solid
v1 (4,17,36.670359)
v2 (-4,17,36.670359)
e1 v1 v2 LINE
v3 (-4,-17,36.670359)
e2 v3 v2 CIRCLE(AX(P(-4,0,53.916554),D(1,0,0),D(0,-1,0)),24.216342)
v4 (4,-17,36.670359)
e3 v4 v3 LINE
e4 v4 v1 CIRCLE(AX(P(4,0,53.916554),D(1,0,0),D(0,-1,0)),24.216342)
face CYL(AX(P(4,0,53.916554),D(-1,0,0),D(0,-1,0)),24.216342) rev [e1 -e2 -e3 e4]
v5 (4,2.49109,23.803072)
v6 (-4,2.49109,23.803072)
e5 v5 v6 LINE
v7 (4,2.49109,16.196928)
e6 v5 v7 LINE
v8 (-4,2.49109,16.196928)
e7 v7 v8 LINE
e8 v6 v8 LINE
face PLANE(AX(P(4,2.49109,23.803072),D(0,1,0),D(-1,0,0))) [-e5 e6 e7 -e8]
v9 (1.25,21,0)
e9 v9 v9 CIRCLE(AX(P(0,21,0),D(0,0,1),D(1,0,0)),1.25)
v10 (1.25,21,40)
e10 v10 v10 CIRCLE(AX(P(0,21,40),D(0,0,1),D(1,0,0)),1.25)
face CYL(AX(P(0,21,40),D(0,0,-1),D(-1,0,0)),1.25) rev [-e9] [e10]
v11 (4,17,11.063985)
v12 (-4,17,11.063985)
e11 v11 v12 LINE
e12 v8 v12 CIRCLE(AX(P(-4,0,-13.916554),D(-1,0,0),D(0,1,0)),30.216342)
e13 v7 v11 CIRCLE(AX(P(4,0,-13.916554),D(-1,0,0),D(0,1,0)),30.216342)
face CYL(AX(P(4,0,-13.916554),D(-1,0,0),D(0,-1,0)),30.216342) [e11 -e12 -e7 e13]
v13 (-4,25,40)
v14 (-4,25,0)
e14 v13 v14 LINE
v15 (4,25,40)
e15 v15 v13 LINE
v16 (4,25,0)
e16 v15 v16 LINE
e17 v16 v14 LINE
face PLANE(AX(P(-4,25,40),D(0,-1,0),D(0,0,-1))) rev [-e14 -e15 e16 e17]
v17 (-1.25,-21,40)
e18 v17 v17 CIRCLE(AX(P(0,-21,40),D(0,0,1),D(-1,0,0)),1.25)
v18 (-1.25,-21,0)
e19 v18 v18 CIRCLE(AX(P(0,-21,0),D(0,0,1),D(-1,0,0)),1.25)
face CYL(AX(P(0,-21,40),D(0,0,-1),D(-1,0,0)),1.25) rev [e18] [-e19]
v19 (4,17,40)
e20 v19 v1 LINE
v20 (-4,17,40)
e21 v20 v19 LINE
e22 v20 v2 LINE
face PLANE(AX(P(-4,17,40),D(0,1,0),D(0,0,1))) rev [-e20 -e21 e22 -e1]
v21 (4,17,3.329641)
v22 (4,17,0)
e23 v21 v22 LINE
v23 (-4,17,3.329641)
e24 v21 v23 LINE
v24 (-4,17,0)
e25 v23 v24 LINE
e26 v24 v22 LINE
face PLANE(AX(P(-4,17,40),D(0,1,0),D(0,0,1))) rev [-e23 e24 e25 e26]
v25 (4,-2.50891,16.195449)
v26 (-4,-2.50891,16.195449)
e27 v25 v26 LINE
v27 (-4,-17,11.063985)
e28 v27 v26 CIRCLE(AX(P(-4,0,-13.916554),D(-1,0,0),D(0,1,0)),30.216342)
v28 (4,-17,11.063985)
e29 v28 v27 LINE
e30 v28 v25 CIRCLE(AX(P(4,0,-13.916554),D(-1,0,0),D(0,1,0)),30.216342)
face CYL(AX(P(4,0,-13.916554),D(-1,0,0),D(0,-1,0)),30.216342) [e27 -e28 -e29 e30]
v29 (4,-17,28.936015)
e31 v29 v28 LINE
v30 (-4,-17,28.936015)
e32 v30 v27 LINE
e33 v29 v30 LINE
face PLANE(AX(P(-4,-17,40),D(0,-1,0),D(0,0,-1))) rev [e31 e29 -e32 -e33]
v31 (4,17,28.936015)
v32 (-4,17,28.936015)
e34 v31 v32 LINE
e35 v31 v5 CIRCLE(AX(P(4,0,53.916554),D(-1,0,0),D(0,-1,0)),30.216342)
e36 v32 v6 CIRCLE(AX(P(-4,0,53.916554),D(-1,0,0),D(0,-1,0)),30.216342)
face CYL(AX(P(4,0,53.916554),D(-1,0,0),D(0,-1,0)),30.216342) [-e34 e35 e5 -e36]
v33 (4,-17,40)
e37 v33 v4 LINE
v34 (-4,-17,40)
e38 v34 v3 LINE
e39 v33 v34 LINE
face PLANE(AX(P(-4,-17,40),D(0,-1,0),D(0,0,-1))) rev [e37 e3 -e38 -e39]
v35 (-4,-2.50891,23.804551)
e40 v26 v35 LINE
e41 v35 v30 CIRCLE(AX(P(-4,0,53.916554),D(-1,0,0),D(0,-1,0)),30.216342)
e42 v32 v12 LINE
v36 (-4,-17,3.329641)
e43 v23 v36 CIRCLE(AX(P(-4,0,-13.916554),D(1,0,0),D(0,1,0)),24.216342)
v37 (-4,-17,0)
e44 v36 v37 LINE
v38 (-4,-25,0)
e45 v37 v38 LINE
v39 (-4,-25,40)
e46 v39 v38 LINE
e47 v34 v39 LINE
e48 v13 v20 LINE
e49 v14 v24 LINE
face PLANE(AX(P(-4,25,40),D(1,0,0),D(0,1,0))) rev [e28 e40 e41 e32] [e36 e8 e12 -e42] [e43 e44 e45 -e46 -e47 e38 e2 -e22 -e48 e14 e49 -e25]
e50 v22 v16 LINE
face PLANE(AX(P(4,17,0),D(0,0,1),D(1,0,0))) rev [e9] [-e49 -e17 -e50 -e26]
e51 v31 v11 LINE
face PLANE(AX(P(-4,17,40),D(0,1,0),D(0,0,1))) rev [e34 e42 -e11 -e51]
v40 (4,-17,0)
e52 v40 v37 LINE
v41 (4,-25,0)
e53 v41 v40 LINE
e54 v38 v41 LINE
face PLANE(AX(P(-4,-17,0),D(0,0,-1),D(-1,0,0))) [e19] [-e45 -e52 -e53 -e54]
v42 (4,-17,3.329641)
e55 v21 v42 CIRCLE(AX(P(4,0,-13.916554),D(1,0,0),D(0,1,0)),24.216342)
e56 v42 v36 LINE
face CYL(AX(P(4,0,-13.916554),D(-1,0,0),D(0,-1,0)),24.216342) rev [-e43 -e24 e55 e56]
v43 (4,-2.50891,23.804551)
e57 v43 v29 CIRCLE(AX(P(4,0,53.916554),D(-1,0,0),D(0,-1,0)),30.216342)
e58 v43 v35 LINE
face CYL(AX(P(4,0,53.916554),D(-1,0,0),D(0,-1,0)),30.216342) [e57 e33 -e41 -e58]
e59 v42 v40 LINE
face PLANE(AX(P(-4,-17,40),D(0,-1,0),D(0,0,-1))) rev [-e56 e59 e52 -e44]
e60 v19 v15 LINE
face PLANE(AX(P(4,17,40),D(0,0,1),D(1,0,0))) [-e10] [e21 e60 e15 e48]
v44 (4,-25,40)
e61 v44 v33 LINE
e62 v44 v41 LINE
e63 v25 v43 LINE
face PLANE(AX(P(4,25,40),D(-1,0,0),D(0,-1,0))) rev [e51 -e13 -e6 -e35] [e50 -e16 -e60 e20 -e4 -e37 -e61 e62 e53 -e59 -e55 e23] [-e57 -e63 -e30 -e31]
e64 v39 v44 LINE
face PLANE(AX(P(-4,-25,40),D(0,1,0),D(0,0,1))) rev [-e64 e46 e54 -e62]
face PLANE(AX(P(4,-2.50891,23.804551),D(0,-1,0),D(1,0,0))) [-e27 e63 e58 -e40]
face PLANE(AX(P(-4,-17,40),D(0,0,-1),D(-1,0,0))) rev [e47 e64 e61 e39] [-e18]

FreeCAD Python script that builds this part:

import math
import FreeCAD as App
import Part
import Sketcher

V = App.Vector


def add_polygon(sketch, points):
    """Adds a closed chain of lines whose ends are joined by coincident constraints."""
    first, n = sketch.GeometryCount, len(points)
    for a, b in zip(points, points[1:] + points[:1]):
        sketch.addGeometry(Part.LineSegment(App.Vector(*a, 0), App.Vector(*b, 0)), False)
    for i in range(n):
        sketch.addConstraint(Sketcher.Constraint("Coincident", first + i, 2, first + (i + 1) % n, 1))

doc = App.newDocument("Part")
body = doc.addObject("PartDesign::Body", "Body")

# Sketch on XY plane
sketch1 = doc.addObject("Sketcher::SketchObject", "Sketch")
body.addObject(sketch1)
sketch1.AttachmentSupport = (doc.XY_Plane, [""])
sketch1.MapMode = "FlatFace"
add_polygon(sketch1, [(-4, 25), (-4, 17), (4, 17), (4, 25)])  # lines 0-3
sketch1.addGeometry(Part.Circle(V(0, 21, 0), V(0, 0, 1), 1.25), False)  # 4
sketch1.addConstraint(Sketcher.Constraint("Vertical", 0))
sketch1.addConstraint(Sketcher.Constraint("Horizontal", 1))
sketch1.addConstraint(Sketcher.Constraint("Vertical", 2))
sketch1.addConstraint(Sketcher.Constraint("Horizontal", 3))
sketch1.addConstraint(Sketcher.Constraint("PointOnObject", 4, 3, -2))
sketch1.addConstraint(Sketcher.Constraint("Equal", 3, 0))
sketch1.addConstraint(Sketcher.Constraint("Diameter", 4, 2.5))
sketch1.addConstraint(Sketcher.Constraint("DistanceX", 1, 1, 1, 2, 8.0))
sketch1.addConstraint(Sketcher.Constraint("DistanceY", -1, 1, 4, 3, 21.0))
sketch1.addConstraint(Sketcher.Constraint("DistanceX", 0, 2, -1, 1, 4.0))
sketch1.addConstraint(Sketcher.Constraint("DistanceY", -1, 1, 0, 2, 17.0))
pad1 = doc.addObject("PartDesign::Pad", "Pad")
body.addObject(pad1)
pad1.Profile = sketch1
pad1.Length = 40
body2 = doc.addObject("PartDesign::Body", "Body001")

# Sketch on XY plane
sketch2 = doc.addObject("Sketcher::SketchObject", "Sketch001")
body2.addObject(sketch2)
sketch2.AttachmentSupport = (doc.getObject("XY_Plane001"), [""])
sketch2.MapMode = "FlatFace"
add_polygon(sketch2, [(-4, -17), (-4, -25), (4, -25), (4, -17)])  # lines 0-3
sketch2.addGeometry(Part.Circle(V(0, -21, 0), V(0, 0, 1), 1.25), False)  # 4
sketch2.addConstraint(Sketcher.Constraint("Vertical", 0))
sketch2.addConstraint(Sketcher.Constraint("Horizontal", 1))
sketch2.addConstraint(Sketcher.Constraint("Vertical", 2))
sketch2.addConstraint(Sketcher.Constraint("Horizontal", 3))
sketch2.addConstraint(Sketcher.Constraint("PointOnObject", 4, 3, -2))
sketch2.addConstraint(Sketcher.Constraint("Equal", 3, 0))
sketch2.addConstraint(Sketcher.Constraint("Diameter", 4, 2.5))
sketch2.addConstraint(Sketcher.Constraint("DistanceX", 1, 1, 1, 2, 8.0))
sketch2.addConstraint(Sketcher.Constraint("DistanceY", 4, 3, -1, 1, 21.0))
sketch2.addConstraint(Sketcher.Constraint("DistanceX", 0, 2, -1, 1, 4.0))
sketch2.addConstraint(Sketcher.Constraint("DistanceY", 0, 2, -1, 1, 25.0))
pad2 = doc.addObject("PartDesign::Pad", "Pad001")
body2.addObject(pad2)
pad2.Profile = sketch2
pad2.Length = 40
body.AllowCompound = True
doc.recompute()

boolean = doc.addObject("PartDesign::Boolean", "Boolean")
body.addObject(boolean)
boolean.Type = "Fuse"
boolean.addObjects([body2])

# Sketch on YZ plane
sketch3 = doc.addObject("Sketcher::SketchObject", "Sketch002")
body.addObject(sketch3)
sketch3.AttachmentSupport = (doc.YZ_Plane, [""])
sketch3.MapMode = "FlatFace"
sketch3.AttachmentOffset = App.Placement(V(0, 0, -4), App.Rotation())
sketch3.addGeometry(Part.LineSegment(V(17, 11.063985, 0), V(17, 3.329641, 0)), False)
sketch3.addGeometry(Part.ArcOfCircle(Part.Circle(V(0, -13.916554, 0), V(0, 0, 1), 24.216342), math.radians(45.41189), math.radians(134.58811)), False)
sketch3.addGeometry(Part.LineSegment(V(-17, 3.329641, 0), V(-17, 11.063985, 0)), False)
sketch3.addGeometry(Part.ArcOfCircle(Part.Circle(V(0, -13.916554, 0), V(0, 0, 1), 30.216342), math.radians(94.762842), math.radians(124.236452)), False)
sketch3.addGeometry(Part.LineSegment(V(-2.50891, 16.195449, 0), V(-2.50891, 23.804551, 0)), False)
sketch3.addGeometry(Part.ArcOfCircle(Part.Circle(V(0, 53.916554, 0), V(0, 0, 1), 30.216342), math.radians(-124.236452), math.radians(-94.762842)), False)
sketch3.addGeometry(Part.LineSegment(V(-17, 28.936015, 0), V(-17, 36.670359, 0)), False)
sketch3.addGeometry(Part.ArcOfCircle(Part.Circle(V(0, 53.916554, 0), V(0, 0, 1), 24.216342), math.radians(-134.58811), math.radians(-45.41189)), False)
sketch3.addGeometry(Part.LineSegment(V(17, 36.670359, 0), V(17, 28.936015, 0)), False)
sketch3.addGeometry(Part.ArcOfCircle(Part.Circle(V(0, 53.916554, 0), V(0, 0, 1), 30.216342), math.radians(-85.271065), math.radians(-55.763548)), False)
sketch3.addGeometry(Part.LineSegment(V(2.49109, 23.803072, 0), V(2.49109, 16.196928, 0)), False)
sketch3.addGeometry(Part.ArcOfCircle(Part.Circle(V(0, -13.916554, 0), V(0, 0, 1), 30.216342), math.radians(55.763548), math.radians(85.271065)), False)
sketch3.addConstraint(Sketcher.Constraint("Coincident", 0, 2, 1, 1))
sketch3.addConstraint(Sketcher.Constraint("Coincident", 1, 2, 2, 1))
sketch3.addConstraint(Sketcher.Constraint("Coincident", 2, 2, 3, 2))
sketch3.addConstraint(Sketcher.Constraint("Coincident", 3, 1, 4, 1))
sketch3.addConstraint(Sketcher.Constraint("Coincident", 4, 2, 5, 2))
sketch3.addConstraint(Sketcher.Constraint("Coincident", 5, 1, 6, 1))
sketch3.addConstraint(Sketcher.Constraint("Coincident", 6, 2, 7, 1))
sketch3.addConstraint(Sketcher.Constraint("Coincident", 7, 2, 8, 1))
sketch3.addConstraint(Sketcher.Constraint("Coincident", 8, 2, 9, 2))
sketch3.addConstraint(Sketcher.Constraint("Coincident", 9, 1, 10, 1))
sketch3.addConstraint(Sketcher.Constraint("Coincident", 10, 2, 11, 2))
sketch3.addConstraint(Sketcher.Constraint("Coincident", 11, 1, 0, 1))
sketch3.addConstraint(Sketcher.Constraint("Vertical", 0))
sketch3.addConstraint(Sketcher.Constraint("Vertical", 2))
sketch3.addConstraint(Sketcher.Constraint("Vertical", 4))
sketch3.addConstraint(Sketcher.Constraint("Vertical", 6))
sketch3.addConstraint(Sketcher.Constraint("Vertical", 8))
sketch3.addConstraint(Sketcher.Constraint("Vertical", 10))
sketch3.addConstraint(Sketcher.Constraint("Coincident", 3, 3, 1, 3))
sketch3.addConstraint(Sketcher.Constraint("Coincident", 7, 3, 5, 3))
sketch3.addConstraint(Sketcher.Constraint("Coincident", 9, 3, 5, 3))
sketch3.addConstraint(Sketcher.Constraint("Coincident", 11, 3, 1, 3))
sketch3.addConstraint(Sketcher.Constraint("Equal", 3, 5))
sketch3.addConstraint(Sketcher.Constraint("Equal", 1, 7))
sketch3.addConstraint(Sketcher.Constraint("Equal", 5, 9))
sketch3.addConstraint(Sketcher.Constraint("Equal", 9, 11))
sketch3.addConstraint(Sketcher.Constraint("Symmetric", 0, 2, 1, 2, -2))
sketch3.addConstraint(Sketcher.Constraint("Symmetric", 6, 2, 7, 2, -2))
sketch3.addConstraint(Sketcher.Constraint("Vertical", 2, 2, 5, 1))
sketch3.addConstraint(Sketcher.Constraint("DistanceX", -1, 1, 0, 2, 17.0))
sketch3.addConstraint(Sketcher.Constraint("DistanceX", 4, 2, 9, 1, 5.0))
sketch3.addConstraint(Sketcher.Constraint("Radius", 1, 24.216342))
sketch3.addConstraint(Sketcher.Constraint("Radius", 3, 30.216342))
sketch3.addConstraint(Sketcher.Constraint("DistanceY", 4, 1, 4, 2, 7.609103))
sketch3.addConstraint(Sketcher.Constraint("DistanceY", 10, 2, 10, 1, 7.606144))
sketch3.addConstraint(Sketcher.Constraint("DistanceY", -1, 1, 0, 2, 3.329641))
pad3 = doc.addObject("PartDesign::Pad", "Pad002")
body.addObject(pad3)
pad3.Profile = sketch3
pad3.Length = 8

doc.recompute()
